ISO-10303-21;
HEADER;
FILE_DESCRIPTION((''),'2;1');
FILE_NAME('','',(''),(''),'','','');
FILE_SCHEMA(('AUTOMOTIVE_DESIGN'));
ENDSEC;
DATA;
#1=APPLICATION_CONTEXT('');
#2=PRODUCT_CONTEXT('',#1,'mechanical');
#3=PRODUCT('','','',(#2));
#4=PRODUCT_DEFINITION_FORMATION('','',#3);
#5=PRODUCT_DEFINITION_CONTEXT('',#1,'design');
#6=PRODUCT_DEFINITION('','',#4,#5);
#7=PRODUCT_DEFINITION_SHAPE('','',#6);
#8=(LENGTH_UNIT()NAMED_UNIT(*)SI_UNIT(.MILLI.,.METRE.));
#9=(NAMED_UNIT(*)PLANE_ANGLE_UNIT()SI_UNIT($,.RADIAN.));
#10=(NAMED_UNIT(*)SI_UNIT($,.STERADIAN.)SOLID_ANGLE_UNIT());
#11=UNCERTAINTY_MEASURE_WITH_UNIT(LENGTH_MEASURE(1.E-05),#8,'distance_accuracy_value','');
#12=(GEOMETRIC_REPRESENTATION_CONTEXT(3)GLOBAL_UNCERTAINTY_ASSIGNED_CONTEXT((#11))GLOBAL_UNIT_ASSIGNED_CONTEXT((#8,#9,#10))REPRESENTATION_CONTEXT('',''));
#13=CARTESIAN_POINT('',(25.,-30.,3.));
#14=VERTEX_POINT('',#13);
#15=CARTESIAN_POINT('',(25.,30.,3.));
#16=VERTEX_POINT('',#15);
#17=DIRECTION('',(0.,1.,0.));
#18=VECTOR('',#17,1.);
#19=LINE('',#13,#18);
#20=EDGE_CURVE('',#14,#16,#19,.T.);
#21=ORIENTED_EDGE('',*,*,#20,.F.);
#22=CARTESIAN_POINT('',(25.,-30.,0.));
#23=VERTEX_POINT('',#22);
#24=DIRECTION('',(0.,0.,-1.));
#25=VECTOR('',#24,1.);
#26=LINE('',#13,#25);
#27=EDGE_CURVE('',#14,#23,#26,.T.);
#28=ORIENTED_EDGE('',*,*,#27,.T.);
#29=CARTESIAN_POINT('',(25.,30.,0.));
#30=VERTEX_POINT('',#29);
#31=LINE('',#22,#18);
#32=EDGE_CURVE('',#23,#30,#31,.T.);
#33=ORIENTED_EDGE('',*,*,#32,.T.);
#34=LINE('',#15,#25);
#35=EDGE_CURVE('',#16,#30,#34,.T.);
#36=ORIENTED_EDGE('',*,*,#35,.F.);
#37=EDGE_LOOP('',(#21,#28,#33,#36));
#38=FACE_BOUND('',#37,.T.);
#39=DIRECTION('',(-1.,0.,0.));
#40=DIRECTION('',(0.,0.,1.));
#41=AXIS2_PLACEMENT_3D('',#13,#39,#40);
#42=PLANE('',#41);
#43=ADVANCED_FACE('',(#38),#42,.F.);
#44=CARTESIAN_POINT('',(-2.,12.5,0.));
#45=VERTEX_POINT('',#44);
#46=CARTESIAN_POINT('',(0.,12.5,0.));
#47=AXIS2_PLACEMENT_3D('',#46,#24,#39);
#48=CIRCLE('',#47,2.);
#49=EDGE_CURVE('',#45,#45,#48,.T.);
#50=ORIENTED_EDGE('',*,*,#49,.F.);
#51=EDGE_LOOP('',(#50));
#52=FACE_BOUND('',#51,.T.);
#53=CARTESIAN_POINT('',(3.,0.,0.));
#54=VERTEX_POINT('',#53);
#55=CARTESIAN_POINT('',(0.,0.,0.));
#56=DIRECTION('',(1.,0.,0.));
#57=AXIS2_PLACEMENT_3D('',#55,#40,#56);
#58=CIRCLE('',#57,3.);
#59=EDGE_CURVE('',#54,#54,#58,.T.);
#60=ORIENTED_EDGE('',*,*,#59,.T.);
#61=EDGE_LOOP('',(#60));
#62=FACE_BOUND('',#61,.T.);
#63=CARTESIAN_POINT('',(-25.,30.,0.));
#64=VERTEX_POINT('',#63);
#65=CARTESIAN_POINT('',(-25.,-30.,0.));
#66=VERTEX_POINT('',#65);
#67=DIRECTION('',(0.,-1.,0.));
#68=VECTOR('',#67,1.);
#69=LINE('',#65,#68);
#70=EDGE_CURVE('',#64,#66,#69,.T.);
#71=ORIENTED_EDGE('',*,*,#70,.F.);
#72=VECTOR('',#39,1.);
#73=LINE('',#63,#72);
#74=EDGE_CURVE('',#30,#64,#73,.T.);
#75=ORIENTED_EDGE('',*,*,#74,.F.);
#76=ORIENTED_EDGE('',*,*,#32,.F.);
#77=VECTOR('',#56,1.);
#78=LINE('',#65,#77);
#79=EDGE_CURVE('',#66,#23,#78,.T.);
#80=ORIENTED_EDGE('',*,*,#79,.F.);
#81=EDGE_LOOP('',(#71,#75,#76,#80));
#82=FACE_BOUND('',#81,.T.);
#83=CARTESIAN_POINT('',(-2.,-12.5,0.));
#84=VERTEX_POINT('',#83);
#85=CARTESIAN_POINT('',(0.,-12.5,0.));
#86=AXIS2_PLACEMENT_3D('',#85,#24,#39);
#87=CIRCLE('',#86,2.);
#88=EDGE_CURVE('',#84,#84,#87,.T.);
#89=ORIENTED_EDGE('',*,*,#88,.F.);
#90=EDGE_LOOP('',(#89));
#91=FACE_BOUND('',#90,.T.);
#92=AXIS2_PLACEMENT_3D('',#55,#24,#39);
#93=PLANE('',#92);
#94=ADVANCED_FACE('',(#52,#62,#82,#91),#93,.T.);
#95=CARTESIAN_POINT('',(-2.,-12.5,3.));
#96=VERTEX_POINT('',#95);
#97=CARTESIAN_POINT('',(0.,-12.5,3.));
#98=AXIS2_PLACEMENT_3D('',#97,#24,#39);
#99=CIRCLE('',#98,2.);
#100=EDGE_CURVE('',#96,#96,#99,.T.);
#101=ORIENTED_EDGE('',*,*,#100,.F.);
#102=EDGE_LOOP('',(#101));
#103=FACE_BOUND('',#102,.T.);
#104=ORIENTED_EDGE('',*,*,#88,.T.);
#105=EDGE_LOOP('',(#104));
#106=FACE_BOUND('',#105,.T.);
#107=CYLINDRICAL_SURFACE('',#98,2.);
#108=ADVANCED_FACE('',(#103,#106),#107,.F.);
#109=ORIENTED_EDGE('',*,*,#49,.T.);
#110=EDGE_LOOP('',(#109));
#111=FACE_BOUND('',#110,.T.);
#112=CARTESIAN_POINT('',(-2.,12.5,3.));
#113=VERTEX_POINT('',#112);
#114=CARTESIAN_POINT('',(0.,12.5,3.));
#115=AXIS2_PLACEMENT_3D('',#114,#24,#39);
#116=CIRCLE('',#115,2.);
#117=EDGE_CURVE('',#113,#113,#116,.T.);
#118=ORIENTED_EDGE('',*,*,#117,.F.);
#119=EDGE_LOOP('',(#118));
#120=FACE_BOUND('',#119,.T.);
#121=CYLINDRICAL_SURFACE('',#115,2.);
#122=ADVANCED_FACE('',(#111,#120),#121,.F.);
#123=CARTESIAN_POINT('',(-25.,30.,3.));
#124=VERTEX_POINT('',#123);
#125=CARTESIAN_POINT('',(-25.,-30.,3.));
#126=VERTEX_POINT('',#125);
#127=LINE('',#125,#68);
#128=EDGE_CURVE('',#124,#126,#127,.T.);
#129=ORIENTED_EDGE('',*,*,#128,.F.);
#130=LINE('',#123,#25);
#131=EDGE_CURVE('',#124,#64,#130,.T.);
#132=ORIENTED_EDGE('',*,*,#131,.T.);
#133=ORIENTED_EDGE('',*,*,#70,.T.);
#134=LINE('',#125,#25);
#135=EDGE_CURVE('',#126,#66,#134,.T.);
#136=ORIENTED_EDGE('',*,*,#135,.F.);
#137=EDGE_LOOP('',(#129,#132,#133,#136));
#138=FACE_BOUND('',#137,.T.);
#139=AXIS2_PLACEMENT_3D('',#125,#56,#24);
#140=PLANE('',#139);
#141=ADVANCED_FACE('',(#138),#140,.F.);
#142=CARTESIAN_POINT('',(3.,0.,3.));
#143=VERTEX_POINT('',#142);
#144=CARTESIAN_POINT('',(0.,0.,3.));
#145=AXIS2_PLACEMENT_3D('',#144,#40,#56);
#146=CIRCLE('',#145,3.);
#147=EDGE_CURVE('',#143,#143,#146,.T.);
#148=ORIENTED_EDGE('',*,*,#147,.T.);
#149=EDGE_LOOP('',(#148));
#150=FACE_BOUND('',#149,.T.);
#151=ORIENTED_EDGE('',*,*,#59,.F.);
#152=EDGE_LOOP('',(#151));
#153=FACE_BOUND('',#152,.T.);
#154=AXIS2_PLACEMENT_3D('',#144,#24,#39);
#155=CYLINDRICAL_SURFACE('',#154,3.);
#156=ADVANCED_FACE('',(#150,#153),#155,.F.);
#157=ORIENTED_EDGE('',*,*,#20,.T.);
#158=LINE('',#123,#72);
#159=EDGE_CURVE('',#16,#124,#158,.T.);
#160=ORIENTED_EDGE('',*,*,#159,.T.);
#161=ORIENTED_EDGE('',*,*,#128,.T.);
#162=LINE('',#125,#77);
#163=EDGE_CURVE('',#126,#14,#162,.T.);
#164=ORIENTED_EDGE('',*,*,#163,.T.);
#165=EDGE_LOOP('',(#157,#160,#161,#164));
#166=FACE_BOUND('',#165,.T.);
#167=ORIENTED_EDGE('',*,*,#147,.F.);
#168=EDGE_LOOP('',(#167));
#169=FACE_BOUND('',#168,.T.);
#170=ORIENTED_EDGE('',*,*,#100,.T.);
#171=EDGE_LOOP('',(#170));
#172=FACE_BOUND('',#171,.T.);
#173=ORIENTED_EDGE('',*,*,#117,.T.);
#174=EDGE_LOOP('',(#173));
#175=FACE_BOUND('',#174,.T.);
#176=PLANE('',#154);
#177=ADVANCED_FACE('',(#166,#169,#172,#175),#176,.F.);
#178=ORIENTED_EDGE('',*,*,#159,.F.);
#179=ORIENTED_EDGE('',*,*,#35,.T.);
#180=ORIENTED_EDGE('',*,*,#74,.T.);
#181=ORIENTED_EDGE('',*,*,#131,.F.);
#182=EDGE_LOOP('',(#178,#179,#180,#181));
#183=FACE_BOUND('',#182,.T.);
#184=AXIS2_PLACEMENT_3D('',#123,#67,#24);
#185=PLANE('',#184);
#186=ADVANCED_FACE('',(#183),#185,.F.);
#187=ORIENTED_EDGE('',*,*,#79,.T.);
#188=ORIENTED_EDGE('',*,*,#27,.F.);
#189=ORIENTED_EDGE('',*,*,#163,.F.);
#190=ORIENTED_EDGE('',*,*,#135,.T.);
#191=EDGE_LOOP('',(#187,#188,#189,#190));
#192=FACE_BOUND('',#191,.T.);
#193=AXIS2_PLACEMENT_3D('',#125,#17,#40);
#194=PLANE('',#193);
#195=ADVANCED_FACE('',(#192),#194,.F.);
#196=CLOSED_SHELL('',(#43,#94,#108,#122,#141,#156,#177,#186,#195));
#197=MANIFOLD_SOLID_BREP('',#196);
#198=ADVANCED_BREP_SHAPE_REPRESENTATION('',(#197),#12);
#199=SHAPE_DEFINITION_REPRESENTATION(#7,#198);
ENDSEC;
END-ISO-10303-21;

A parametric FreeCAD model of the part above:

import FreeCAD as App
import Part
import Sketcher

V = App.Vector


def add_polygon(sketch, points):
    """Adds a closed chain of lines whose ends are joined by coincident constraints."""
    first, n = sketch.GeometryCount, len(points)
    for a, b in zip(points, points[1:] + points[:1]):
        sketch.addGeometry(Part.LineSegment(App.Vector(*a, 0), App.Vector(*b, 0)), False)
    for i in range(n):
        sketch.addConstraint(Sketcher.Constraint("Coincident", first + i, 2, first + (i + 1) % n, 1))

doc = App.newDocument("Part")
params = doc.addObject("Spreadsheet::Sheet", "Params")
for row, (alias, value) in enumerate([
    ("sketch1_diameter", "6 mm"),
    ("sketch1_width", "50 mm"),
    ("sketch1_height", "60 mm"),
    ("pad1_length", "3 mm"),
    ("sketch2_diameter", "4 mm"),
], start=1):
    params.set(f"A{row}", alias)
    params.set(f"B{row}", "=" + value)
    params.setAlias(f"B{row}", alias)

body = doc.addObject("PartDesign::Body", "Body")

sketch1 = body.newObject("Sketcher::SketchObject", "Sketch")
sketch1.AttachmentSupport = (doc.getObject("XY_Plane"), [""])
sketch1.MapMode = "FlatFace"
add_polygon(sketch1, [(-25, 30), (-25, -30), (25, -30), (25, 30)])
sketch1.addGeometry(Part.Circle(V(0, 0, 0), V(0, 0, 1), 3), False)
sketch1.addConstraint([
    Sketcher.Constraint("Vertical", 0),
    Sketcher.Constraint("Horizontal", 1),
    Sketcher.Constraint("Vertical", 2),
    Sketcher.Constraint("Horizontal", 3),
    Sketcher.Constraint("Coincident", 4, 3, -1, 1),
    Sketcher.Constraint("Symmetric", 0, 2, 2, 2, -1, 1),
    Sketcher.Constraint("Diameter", 4, 6.0),
    Sketcher.Constraint("DistanceX", 1, 1, 1, 2, 50.0),
    Sketcher.Constraint("DistanceY", 0, 2, 0, 1, 60.0),
])
sketch1.setExpression("Constraints[10]", "Params.sketch1_diameter")
sketch1.setExpression("Constraints[11]", "Params.sketch1_width")
sketch1.setExpression("Constraints[12]", "Params.sketch1_height")
pad1 = body.newObject("PartDesign::Pad", "Pad")
pad1.Profile = sketch1
pad1.setExpression("Length", "Params.pad1_length")

sketch2 = body.newObject("Sketcher::SketchObject", "Sketch001")
sketch2.AttachmentSupport = (doc.getObject("XY_Plane"), [""])
sketch2.MapMode = "FlatFace"
sketch2.addGeometry([
    Part.Circle(V(0, 12.5, 0), V(0, 0, 1), 2),
    Part.Circle(V(0, -12.5, 0), V(0, 0, 1), 2),
], False)
sketch2.addConstraint([
    Sketcher.Constraint("Equal", 0, 1),
    Sketcher.Constraint("Symmetric", 0, 3, 1, 3, -1, 1),
    Sketcher.Constraint("PointOnObject", 0, 3, -2),
    Sketcher.Constraint("Diameter", 0, 4.0),
    Sketcher.Constraint("DistanceY", 1, 3, 0, 3, 25.0),
])
sketch2.setExpression("Constraints[3]", "Params.sketch2_diameter")
pocket1 = body.newObject("PartDesign::Pocket", "Pocket")
pocket1.Profile = sketch2
pocket1.Type = "ThroughAll"
pocket1.Reversed = True

doc.recompute()
